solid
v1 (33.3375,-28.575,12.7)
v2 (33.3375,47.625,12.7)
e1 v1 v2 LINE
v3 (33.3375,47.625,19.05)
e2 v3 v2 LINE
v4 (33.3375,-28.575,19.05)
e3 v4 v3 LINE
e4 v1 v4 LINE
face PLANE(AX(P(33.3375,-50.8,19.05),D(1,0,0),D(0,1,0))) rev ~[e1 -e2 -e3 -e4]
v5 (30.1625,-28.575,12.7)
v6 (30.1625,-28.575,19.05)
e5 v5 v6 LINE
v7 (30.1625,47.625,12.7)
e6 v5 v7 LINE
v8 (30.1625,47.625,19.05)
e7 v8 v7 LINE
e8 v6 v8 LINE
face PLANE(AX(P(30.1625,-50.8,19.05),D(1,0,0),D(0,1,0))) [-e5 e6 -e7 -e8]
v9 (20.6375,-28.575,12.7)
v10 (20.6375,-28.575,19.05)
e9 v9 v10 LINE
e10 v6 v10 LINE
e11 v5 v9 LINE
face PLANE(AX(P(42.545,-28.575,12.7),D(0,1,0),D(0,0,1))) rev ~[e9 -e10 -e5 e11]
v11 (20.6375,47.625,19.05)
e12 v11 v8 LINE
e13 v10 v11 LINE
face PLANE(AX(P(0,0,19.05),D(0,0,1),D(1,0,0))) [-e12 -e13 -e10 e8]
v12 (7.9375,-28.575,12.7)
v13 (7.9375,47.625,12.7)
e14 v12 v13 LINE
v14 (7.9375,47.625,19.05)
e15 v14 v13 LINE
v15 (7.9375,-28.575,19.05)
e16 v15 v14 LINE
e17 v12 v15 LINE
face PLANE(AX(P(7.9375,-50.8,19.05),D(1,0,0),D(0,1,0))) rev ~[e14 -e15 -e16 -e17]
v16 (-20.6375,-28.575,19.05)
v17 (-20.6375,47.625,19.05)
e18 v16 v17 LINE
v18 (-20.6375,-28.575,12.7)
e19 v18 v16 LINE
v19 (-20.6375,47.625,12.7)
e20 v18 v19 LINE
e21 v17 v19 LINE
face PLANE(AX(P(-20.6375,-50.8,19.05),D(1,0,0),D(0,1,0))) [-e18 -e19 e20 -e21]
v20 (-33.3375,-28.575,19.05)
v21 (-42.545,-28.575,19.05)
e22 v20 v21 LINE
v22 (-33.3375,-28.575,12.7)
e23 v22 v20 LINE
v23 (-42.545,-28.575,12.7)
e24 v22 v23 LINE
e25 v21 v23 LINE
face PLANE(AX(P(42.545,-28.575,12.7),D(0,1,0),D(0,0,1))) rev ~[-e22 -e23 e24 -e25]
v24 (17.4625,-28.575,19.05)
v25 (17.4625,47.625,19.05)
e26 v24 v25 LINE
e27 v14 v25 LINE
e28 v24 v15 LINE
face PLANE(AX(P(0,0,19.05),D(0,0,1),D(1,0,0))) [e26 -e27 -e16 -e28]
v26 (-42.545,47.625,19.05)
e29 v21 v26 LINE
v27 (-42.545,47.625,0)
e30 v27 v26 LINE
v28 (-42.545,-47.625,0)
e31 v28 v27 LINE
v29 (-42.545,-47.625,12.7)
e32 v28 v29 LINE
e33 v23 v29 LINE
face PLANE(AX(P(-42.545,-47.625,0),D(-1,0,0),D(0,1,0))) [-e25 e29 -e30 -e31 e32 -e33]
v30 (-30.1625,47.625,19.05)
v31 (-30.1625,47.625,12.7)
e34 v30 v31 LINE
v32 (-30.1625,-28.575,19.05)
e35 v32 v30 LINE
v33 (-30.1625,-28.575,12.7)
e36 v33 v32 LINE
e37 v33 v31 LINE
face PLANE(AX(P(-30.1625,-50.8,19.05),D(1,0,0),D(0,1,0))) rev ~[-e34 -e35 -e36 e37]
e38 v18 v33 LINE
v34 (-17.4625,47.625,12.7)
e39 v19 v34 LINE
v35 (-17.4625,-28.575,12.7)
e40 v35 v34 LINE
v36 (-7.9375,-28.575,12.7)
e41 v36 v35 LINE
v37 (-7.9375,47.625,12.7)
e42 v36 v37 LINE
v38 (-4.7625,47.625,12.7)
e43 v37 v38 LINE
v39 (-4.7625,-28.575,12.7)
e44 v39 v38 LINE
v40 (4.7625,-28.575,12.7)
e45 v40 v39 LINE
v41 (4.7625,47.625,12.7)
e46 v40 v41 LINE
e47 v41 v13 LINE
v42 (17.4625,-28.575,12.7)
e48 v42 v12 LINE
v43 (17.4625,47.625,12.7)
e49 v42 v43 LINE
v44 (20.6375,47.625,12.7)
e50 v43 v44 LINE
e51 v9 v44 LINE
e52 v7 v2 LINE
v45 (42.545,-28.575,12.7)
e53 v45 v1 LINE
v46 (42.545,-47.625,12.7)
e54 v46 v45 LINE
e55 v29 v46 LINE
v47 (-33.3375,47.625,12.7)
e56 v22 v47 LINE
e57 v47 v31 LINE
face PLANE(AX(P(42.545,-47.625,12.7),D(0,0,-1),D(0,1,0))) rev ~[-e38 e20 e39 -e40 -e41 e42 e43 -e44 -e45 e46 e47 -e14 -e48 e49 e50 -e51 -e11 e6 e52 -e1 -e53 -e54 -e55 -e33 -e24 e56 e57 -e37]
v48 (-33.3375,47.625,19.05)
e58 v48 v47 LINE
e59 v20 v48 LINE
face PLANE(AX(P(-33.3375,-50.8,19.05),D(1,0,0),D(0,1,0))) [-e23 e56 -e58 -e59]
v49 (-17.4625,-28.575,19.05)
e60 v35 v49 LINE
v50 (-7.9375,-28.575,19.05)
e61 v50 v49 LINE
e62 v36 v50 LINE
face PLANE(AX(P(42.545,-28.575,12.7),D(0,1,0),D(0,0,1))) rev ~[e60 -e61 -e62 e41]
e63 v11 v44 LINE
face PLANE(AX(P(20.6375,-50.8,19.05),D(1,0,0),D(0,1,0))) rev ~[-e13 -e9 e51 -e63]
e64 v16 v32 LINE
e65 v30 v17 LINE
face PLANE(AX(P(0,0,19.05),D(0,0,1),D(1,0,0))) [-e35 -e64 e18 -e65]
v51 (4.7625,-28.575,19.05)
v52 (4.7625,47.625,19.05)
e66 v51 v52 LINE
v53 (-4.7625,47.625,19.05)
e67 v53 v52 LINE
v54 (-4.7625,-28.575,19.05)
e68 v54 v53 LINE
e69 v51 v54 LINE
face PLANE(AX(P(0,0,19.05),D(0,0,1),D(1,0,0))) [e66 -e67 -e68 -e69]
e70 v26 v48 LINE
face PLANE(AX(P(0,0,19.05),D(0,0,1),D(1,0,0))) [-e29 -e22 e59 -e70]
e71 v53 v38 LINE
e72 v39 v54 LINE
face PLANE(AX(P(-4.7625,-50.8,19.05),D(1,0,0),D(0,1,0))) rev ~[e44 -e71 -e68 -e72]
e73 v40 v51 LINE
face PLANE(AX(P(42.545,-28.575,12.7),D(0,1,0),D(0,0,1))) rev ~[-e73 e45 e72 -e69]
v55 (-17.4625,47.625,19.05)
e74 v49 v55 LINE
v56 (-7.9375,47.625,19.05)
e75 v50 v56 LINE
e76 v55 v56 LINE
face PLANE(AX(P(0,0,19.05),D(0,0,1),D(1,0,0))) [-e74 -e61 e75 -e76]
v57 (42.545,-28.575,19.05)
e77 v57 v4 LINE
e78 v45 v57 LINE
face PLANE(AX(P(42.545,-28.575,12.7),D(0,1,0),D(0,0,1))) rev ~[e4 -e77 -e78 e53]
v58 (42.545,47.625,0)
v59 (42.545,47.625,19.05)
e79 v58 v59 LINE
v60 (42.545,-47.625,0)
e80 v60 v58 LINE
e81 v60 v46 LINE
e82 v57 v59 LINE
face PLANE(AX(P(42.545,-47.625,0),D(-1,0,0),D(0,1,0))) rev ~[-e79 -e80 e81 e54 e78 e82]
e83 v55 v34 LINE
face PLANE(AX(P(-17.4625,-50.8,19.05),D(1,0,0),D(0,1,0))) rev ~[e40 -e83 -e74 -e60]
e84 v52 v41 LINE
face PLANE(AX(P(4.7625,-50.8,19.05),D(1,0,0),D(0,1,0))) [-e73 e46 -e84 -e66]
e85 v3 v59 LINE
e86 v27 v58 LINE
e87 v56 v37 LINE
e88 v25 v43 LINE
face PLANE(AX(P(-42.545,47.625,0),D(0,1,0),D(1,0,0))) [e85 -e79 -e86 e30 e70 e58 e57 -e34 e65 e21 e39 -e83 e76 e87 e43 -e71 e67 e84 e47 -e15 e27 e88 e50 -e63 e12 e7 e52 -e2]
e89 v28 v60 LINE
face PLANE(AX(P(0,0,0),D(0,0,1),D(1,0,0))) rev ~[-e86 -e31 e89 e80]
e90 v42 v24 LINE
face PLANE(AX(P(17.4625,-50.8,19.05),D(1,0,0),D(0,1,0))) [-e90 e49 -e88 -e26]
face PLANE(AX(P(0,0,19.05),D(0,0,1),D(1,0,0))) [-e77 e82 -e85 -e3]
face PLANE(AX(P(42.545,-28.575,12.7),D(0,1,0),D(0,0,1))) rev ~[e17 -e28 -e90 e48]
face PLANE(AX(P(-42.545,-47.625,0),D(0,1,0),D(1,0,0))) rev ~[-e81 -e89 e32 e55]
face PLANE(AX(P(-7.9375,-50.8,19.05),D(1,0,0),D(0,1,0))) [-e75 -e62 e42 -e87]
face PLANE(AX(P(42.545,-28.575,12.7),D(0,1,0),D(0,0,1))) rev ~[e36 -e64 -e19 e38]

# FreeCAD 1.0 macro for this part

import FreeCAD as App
import Part
import Sketcher
Q = App.Units.Quantity


def add_polygon(sketch, points):
    """Adds a closed chain of lines whose ends are joined by coincident constraints."""
    first, n = sketch.GeometryCount, len(points)
    for a, b in zip(points, points[1:] + points[:1]):
        sketch.addGeometry(Part.LineSegment(App.Vector(*a, 0), App.Vector(*b, 0)), False)
    for i in range(n):
        sketch.addConstraint(Sketcher.Constraint("Coincident", first + i, 2, first + (i + 1) % n, 1))

doc = App.newDocument("Part")
body = doc.addObject("PartDesign::Body", "Body")

# Sketch on XY plane
sketch1 = doc.addObject("Sketcher::SketchObject", "Sketch")
body.addObject(sketch1)
sketch1.AttachmentSupport = (doc.XY_Plane, [""])
sketch1.MapMode = "FlatFace"
add_polygon(sketch1, [(-43, 48), (-43, -48), (43, -48), (43, 48)])  # lines 0-3
sketch1.addConstraint([
    Sketcher.Constraint("Vertical", 0),
    Sketcher.Constraint("Horizontal", 1),
    Sketcher.Constraint("Vertical", 2),
    Sketcher.Constraint("Horizontal", 3),
    Sketcher.Constraint("Symmetric", 0, 2, 2, 2, -1, 1),
    Sketcher.Constraint("DistanceX", 1, 1, 1, 2, Q("3.35 in")),
    Sketcher.Constraint("DistanceY", 0, 2, 0, 1, Q("3.75 in")),
])
pad1 = doc.addObject("PartDesign::Pad", "Pad")
body.addObject(pad1)
pad1.Profile = sketch1
pad1.Length = Q("0.75 in")

# Sketch on XY plane
sketch2 = doc.addObject("Sketcher::SketchObject", "Sketch001")
body.addObject(sketch2)
sketch2.AttachmentSupport = (doc.XY_Plane, [""])
sketch2.MapMode = "FlatFace"
sketch2.AttachmentOffset = App.Placement(App.Vector(0, 0, 0.75 * 25.4), App.Rotation())
add_polygon(sketch2, [(-33.3, 50.8), (-33.3, -50.8), (-30.2, -50.8), (-30.2, 50.8)])  # lines 0-3
add_polygon(sketch2, [(-20.6, 50.8), (-20.6, -50.8), (-17.5, -50.8), (-17.5, 50.8)])  # lines 4-7
add_polygon(sketch2, [(-7.9, 50.8), (-7.9, -50.8), (-4.8, -50.8), (-4.8, 50.8)])  # lines 8-11
add_polygon(sketch2, [(4.8, 50.8), (4.8, -50.8), (7.9, -50.8), (7.9, 50.8)])  # lines 12-15
add_polygon(sketch2, [(17.5, 50.8), (17.5, -50.8), (20.6, -50.8), (20.6, 50.8)])  # lines 16-19
add_polygon(sketch2, [(30.2, 50.8), (30.2, -50.8), (33.3, -50.8), (33.3, 50.8)])  # lines 20-23
sketch2.addConstraint([
    Sketcher.Constraint("Vertical", 0),
    Sketcher.Constraint("Horizontal", 1),
    Sketcher.Constraint("Vertical", 2),
    Sketcher.Constraint("Horizontal", 3),
    Sketcher.Constraint("Vertical", 4),
    Sketcher.Constraint("Horizontal", 5),
    Sketcher.Constraint("Vertical", 6),
    Sketcher.Constraint("Horizontal", 7),
    Sketcher.Constraint("Vertical", 8),
    Sketcher.Constraint("Horizontal", 9),
    Sketcher.Constraint("Vertical", 10),
    Sketcher.Constraint("Horizontal", 11),
    Sketcher.Constraint("Vertical", 12),
    Sketcher.Constraint("Horizontal", 13),
    Sketcher.Constraint("Vertical", 14),
    Sketcher.Constraint("Horizontal", 15),
    Sketcher.Constraint("Vertical", 16),
    Sketcher.Constraint("Horizontal", 17),
    Sketcher.Constraint("Vertical", 18),
    Sketcher.Constraint("Horizontal", 19),
    Sketcher.Constraint("Vertical", 20),
    Sketcher.Constraint("Horizontal", 21),
    Sketcher.Constraint("Vertical", 22),
    Sketcher.Constraint("Horizontal", 23),
    Sketcher.Constraint("Symmetric", 10, 2, 12, 2, -1, 1),
    Sketcher.Constraint("Symmetric", 8, 2, 14, 2, -1, 1),
    Sketcher.Constraint("Symmetric", 6, 2, 16, 2, -1, 1),
    Sketcher.Constraint("Symmetric", 4, 2, 18, 2, -1, 1),
    Sketcher.Constraint("Symmetric", 2, 2, 20, 2, -1, 1),
    Sketcher.Constraint("Symmetric", 0, 2, 22, 2, -1, 1),
    Sketcher.Constraint("Horizontal", 1, 2, 4, 2),
    Sketcher.Constraint("Horizontal", 3, 2, 6, 2),
    Sketcher.Constraint("Horizontal", 5, 2, 8, 2),
    Sketcher.Constraint("Horizontal", 7, 2, 10, 2),
    Sketcher.Constraint("Horizontal", 9, 2, 12, 2),
    Sketcher.Constraint("Equal", 3, 5),
    Sketcher.Constraint("Equal", 7, 9),
    Sketcher.Constraint("DistanceY", 0, 2, 0, 1, Q("4 in")),
    Sketcher.Constraint("DistanceX", 0, 2, 8, 2, Q("1 in")),
    Sketcher.Constraint("DistanceX", 4, 2, 12, 2, Q("1 in")),
    Sketcher.Constraint("DistanceX", 0, 2, 4, 2, Q("0.5 in")),
    Sketcher.Constraint("DistanceX", 1, 1, 1, 2, Q("0.125 in")),
])
pocket1 = doc.addObject("PartDesign::Pocket", "Pocket")
body.addObject(pocket1)
pocket1.Profile = sketch2
pocket1.Length = Q("0.25 in")

# Sketch on YZ plane
sketch3 = doc.addObject("Sketcher::SketchObject", "Sketch002")
body.addObject(sketch3)
sketch3.AttachmentSupport = (doc.YZ_Plane, [""])
sketch3.MapMode = "FlatFace"
sketch3.AttachmentOffset = App.Placement(App.Vector(0, 0, 1.675 * 25.4), App.Rotation())
add_polygon(sketch3, [(-48, 19), (-48, 13), (-29, 13), (-29, 19)])  # lines 0-3
sketch3.addConstraint([
    Sketcher.Constraint("Vertical", 0),
    Sketcher.Constraint("Horizontal", 1),
    Sketcher.Constraint("Vertical", 2),
    Sketcher.Constraint("Horizontal", 3),
    Sketcher.Constraint("DistanceX", 1, 1, 1, 2, Q("0.75 in")),
    Sketcher.Constraint("DistanceY", 0, 2, 0, 1, Q("0.25 in")),
    Sketcher.Constraint("DistanceY", -1, 1, 0, 2, Q("0.5 in")),
    Sketcher.Constraint("DistanceX", 0, 2, -1, 1, Q("1.875 in")),
])
pocket2 = doc.addObject("PartDesign::Pocket", "Pocket001")
body.addObject(pocket2)
pocket2.Profile = sketch3
pocket2.Type = "ThroughAll"

doc.recompute()
